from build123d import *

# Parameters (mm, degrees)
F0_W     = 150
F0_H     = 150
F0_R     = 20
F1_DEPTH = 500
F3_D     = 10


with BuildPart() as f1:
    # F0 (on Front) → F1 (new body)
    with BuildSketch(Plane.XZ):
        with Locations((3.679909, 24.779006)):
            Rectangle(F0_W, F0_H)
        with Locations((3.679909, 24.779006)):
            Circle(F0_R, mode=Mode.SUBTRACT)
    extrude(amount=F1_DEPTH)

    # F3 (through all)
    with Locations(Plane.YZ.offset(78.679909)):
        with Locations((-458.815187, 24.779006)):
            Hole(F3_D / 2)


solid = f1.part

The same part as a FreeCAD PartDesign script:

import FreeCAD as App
import Part
import Sketcher
Q = App.Units.Quantity

doc = App.newDocument("Part")
body = doc.addObject("PartDesign::Body", "Body")

sketch1 = doc.addObject("Sketcher::SketchObject", "Sketch")
body.addObject(sketch1)
sketch1.AttachmentSupport = (doc.XZ_Plane, [""])
sketch1.MapMode = "FlatFace"
sketch1.addGeometry([
    Part.LineSegment(App.Vector(-71, 100, 0), App.Vector(-71, -50, 0)),
    Part.LineSegment(App.Vector(-71, -50, 0), App.Vector(79, -50, 0)),
    Part.LineSegment(App.Vector(79, -50, 0), App.Vector(79, 100, 0)),
    Part.LineSegment(App.Vector(79, 100, 0), App.Vector(-71, 100, 0)),
    Part.Circle(App.Vector(4, 25, 0), App.Vector(0, 0, 1), 20),
], False)
sketch1.addConstraint([
    Sketcher.Constraint("Coincident", 0, 2, 1, 1),
    Sketcher.Constraint("Coincident", 1, 2, 2, 1),
    Sketcher.Constraint("Coincident", 2, 2, 3, 1),
    Sketcher.Constraint("Coincident", 3, 2, 0, 1),
    Sketcher.Constraint("Vertical", 0),
    Sketcher.Constraint("Horizontal", 1),
    Sketcher.Constraint("Vertical", 2),
    Sketcher.Constraint("Horizontal", 3),
    Sketcher.Constraint("Equal", 3, 0),
    Sketcher.Constraint("Diameter", 4, Q("40 mm")),
    Sketcher.Constraint("DistanceX", 1, 1, 1, 2, Q("150 mm")),
    Sketcher.Constraint("DistanceX", 0, 2, 4, 3, Q("75 mm")),
    Sketcher.Constraint("DistanceY", 0, 2, 4, 3, Q("75 mm")),
    Sketcher.Constraint("DistanceX", -1, 1, 4, 3, Q("3.679909 mm")),
    Sketcher.Constraint("DistanceY", -1, 1, 4, 3, Q("24.779006 mm")),
])
pad1 = doc.addObject("PartDesign::Pad", "Pad")
body.addObject(pad1)
pad1.Profile = sketch1
pad1.Length = 500

sketch2 = doc.addObject("Sketcher::SketchObject", "Sketch001")
body.addObject(sketch2)
sketch2.AttachmentSupport = (doc.YZ_Plane, [""])
sketch2.MapMode = "FlatFace"
sketch2.AttachmentOffset = App.Placement(App.Vector(0, 0, 78.679909), App.Rotation())
sketch2.addGeometry(Part.Circle(App.Vector(-459, 25, 0), App.Vector(0, 0, 1), 5), False)
sketch2.addConstraint([
    Sketcher.Constraint("Diameter", 0, Q("10 mm")),
    Sketcher.Constraint("DistanceX", 0, 3, -1, 1, Q("458.815187 mm")),
    Sketcher.Constraint("DistanceY", -1, 1, 0, 3, Q("24.779006 mm")),
])
doc.recompute()
hole = doc.addObject("PartDesign::Hole", "Hole")
body.addObject(hole)
hole.Profile = sketch2
hole.ThreadType = "None"
hole.Diameter = 10
hole.DepthType = "ThroughAll"

doc.recompute()
